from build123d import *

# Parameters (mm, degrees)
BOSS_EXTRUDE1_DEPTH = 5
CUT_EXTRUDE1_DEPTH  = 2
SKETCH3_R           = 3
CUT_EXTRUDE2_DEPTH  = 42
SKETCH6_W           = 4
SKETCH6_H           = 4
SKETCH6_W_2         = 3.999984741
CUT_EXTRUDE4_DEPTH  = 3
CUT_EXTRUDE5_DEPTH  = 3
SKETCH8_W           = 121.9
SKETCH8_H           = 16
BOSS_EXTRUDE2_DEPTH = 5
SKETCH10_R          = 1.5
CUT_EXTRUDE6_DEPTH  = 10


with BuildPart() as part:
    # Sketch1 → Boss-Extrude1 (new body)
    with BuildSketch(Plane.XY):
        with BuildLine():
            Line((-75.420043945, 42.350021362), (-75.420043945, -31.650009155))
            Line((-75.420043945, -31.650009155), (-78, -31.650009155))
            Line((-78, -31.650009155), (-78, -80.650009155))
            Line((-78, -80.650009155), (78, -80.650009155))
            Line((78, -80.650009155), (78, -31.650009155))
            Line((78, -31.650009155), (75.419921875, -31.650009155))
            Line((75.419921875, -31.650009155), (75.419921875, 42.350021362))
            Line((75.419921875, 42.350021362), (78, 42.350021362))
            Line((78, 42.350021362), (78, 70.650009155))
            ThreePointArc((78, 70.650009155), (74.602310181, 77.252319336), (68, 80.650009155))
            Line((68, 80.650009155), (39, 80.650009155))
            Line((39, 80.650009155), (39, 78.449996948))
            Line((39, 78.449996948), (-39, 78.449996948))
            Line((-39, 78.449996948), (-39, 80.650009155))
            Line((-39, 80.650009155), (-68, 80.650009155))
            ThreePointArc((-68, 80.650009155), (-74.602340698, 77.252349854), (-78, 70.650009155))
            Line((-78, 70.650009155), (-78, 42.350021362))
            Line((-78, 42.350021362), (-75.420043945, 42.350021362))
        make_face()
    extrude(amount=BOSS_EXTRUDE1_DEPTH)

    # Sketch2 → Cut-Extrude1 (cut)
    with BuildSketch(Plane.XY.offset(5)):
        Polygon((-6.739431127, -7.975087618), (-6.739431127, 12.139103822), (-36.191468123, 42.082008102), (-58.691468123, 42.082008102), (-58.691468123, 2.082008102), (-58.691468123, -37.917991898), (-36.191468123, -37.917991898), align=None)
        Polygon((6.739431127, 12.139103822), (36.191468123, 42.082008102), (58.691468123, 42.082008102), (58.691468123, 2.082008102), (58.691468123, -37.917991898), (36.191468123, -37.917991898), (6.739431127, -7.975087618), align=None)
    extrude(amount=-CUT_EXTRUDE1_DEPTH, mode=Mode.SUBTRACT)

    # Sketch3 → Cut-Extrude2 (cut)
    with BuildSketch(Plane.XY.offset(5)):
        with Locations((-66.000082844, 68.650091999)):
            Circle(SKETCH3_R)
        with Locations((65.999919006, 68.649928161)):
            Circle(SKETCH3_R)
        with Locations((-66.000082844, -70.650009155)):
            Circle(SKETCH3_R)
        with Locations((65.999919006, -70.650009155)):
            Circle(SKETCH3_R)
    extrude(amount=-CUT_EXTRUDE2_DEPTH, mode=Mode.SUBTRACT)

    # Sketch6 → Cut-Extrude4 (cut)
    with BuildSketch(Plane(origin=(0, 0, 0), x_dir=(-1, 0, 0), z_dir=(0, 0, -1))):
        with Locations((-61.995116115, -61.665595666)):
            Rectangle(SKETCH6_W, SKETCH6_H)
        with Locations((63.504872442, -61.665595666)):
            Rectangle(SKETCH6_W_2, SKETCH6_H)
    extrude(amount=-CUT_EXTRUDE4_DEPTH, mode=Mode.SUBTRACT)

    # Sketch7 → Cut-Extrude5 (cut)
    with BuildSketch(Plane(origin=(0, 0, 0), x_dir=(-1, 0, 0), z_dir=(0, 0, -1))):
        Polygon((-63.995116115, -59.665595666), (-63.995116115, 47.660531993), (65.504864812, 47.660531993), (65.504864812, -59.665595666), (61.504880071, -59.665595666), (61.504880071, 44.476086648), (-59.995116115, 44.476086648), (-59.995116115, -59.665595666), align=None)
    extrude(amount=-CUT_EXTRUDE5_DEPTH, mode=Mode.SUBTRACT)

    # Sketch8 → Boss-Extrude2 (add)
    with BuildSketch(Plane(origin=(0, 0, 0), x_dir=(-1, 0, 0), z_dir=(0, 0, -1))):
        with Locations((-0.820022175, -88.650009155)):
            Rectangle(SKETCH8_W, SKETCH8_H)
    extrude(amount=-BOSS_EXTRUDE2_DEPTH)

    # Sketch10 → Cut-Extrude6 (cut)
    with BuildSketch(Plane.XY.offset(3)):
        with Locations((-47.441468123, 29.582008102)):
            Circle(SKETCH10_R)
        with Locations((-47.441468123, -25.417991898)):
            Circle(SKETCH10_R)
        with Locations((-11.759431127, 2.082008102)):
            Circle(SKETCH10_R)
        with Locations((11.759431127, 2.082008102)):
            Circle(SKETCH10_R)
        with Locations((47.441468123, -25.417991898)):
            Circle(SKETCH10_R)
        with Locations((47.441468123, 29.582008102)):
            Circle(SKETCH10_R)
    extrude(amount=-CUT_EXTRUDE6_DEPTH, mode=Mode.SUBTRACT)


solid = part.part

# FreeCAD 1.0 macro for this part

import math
import FreeCAD as App
import Part
import Sketcher
from FreeCAD import Vector
Q = App.Units.Quantity

doc = App.newDocument("Part")
body = doc.addObject("PartDesign::Body", "Body")

# Sketch on XY plane
sketch1 = body.newObject("Sketcher::SketchObject", "Sketch")
sketch1.AttachmentSupport = (doc.getObject("XY_Plane"), [""])
sketch1.MapMode = "FlatFace"
sketch1.addGeometry(Part.LineSegment(Vector(-75.4, 42.4, 0), Vector(-75.4, -31.7, 0)), False)
sketch1.addGeometry(Part.LineSegment(Vector(-75.4, -31.7, 0), Vector(-78, -31.7, 0)), False)
sketch1.addGeometry(Part.LineSegment(Vector(-78, -31.7, 0), Vector(-78, -80.7, 0)), False)
sketch1.addGeometry(Part.LineSegment(Vector(-78, -80.7, 0), Vector(78, -80.7, 0)), False)
sketch1.addGeometry(Part.LineSegment(Vector(78, -80.7, 0), Vector(78, -31.7, 0)), False)
sketch1.addGeometry(Part.LineSegment(Vector(78, -31.7, 0), Vector(75.4, -31.7, 0)), False)
sketch1.addGeometry(Part.LineSegment(Vector(75.4, -31.7, 0), Vector(75.4, 42.4, 0)), False)
sketch1.addGeometry(Part.LineSegment(Vector(75.4, 42.4, 0), Vector(78, 42.4, 0)), False)
sketch1.addGeometry(Part.LineSegment(Vector(78, 42.4, 0), Vector(78, 70.7, 0)), False)
sketch1.addGeometry(Part.ArcOfCircle(Part.Circle(Vector(66, 68.6, 0), Vector(0, 0, 1), 12.2), math.radians(9), math.radians(81)), False)
sketch1.addGeometry(Part.LineSegment(Vector(68, 80.7, 0), Vector(39, 80.7, 0)), False)
sketch1.addGeometry(Part.LineSegment(Vector(39, 80.7, 0), Vector(39, 78.4, 0)), False)
sketch1.addGeometry(Part.LineSegment(Vector(39, 78.4, 0), Vector(-39, 78.4, 0)), False)
sketch1.addGeometry(Part.LineSegment(Vector(-39, 78.4, 0), Vector(-39, 80.7, 0)), False)
sketch1.addGeometry(Part.LineSegment(Vector(-39, 80.7, 0), Vector(-68, 80.7, 0)), False)
sketch1.addGeometry(Part.ArcOfCircle(Part.Circle(Vector(-66, 68.7, 0), Vector(0, 0, 1), 12.2), math.radians(99), math.radians(171)), False)
sketch1.addGeometry(Part.LineSegment(Vector(-78, 70.7, 0), Vector(-78, 42.4, 0)), False)
sketch1.addGeometry(Part.LineSegment(Vector(-78, 42.4, 0), Vector(-75.4, 42.4, 0)), False)
sketch1.addConstraint(Sketcher.Constraint("Coincident", 0, 2, 1, 1))
sketch1.addConstraint(Sketcher.Constraint("Coincident", 1, 2, 2, 1))
sketch1.addConstraint(Sketcher.Constraint("Coincident", 2, 2, 3, 1))
sketch1.addConstraint(Sketcher.Constraint("Coincident", 3, 2, 4, 1))
sketch1.addConstraint(Sketcher.Constraint("Coincident", 4, 2, 5, 1))
sketch1.addConstraint(Sketcher.Constraint("Coincident", 5, 2, 6, 1))
sketch1.addConstraint(Sketcher.Constraint("Coincident", 6, 2, 7, 1))
sketch1.addConstraint(Sketcher.Constraint("Coincident", 7, 2, 8, 1))
sketch1.addConstraint(Sketcher.Constraint("Coincident", 8, 2, 9, 1))
sketch1.addConstraint(Sketcher.Constraint("Coincident", 9, 2, 10, 1))
sketch1.addConstraint(Sketcher.Constraint("Coincident", 10, 2, 11, 1))
sketch1.addConstraint(Sketcher.Constraint("Coincident", 11, 2, 12, 1))
sketch1.addConstraint(Sketcher.Constraint("Coincident", 12, 2, 13, 1))
sketch1.addConstraint(Sketcher.Constraint("Coincident", 13, 2, 14, 1))
sketch1.addConstraint(Sketcher.Constraint("Coincident", 14, 2, 15, 1))
sketch1.addConstraint(Sketcher.Constraint("Coincident", 15, 2, 16, 1))
sketch1.addConstraint(Sketcher.Constraint("Coincident", 16, 2, 17, 1))
sketch1.addConstraint(Sketcher.Constraint("Coincident", 17, 2, 0, 1))
sketch1.addConstraint(Sketcher.Constraint("Vertical", 0))
sketch1.addConstraint(Sketcher.Constraint("Horizontal", 1))
sketch1.addConstraint(Sketcher.Constraint("Vertical", 2))
sketch1.addConstraint(Sketcher.Constraint("Horizontal", 3))
sketch1.addConstraint(Sketcher.Constraint("Vertical", 4))
sketch1.addConstraint(Sketcher.Constraint("Horizontal", 5))
sketch1.addConstraint(Sketcher.Constraint("Vertical", 6))
sketch1.addConstraint(Sketcher.Constraint("Horizontal", 7))
sketch1.addConstraint(Sketcher.Constraint("Vertical", 8))
sketch1.addConstraint(Sketcher.Constraint("Horizontal", 10))
sketch1.addConstraint(Sketcher.Constraint("Vertical", 11))
sketch1.addConstraint(Sketcher.Constraint("Horizontal", 12))
sketch1.addConstraint(Sketcher.Constraint("Vertical", 13))
sketch1.addConstraint(Sketcher.Constraint("Horizontal", 14))
sketch1.addConstraint(Sketcher.Constraint("Vertical", 16))
sketch1.addConstraint(Sketcher.Constraint("Horizontal", 17))
sketch1.addConstraint(Sketcher.Constraint("Symmetric", 1, 2, 4, 2, -2))
sketch1.addConstraint(Sketcher.Constraint("Symmetric", 10, 2, 13, 2, -2))
sketch1.addConstraint(Sketcher.Constraint("Symmetric", 8, 2, 15, 2, -2))
sketch1.addConstraint(Sketcher.Constraint("Horizontal", 7, 2, 16, 2))
sketch1.addConstraint(Sketcher.Constraint("Vertical", 4, 2, 7, 2))
sketch1.addConstraint(Sketcher.Constraint("Equal", 10, 14))
sketch1.addConstraint(Sketcher.Constraint("DistanceX", 3, 1, 3, 2, Q("156 mm")))
sketch1.addConstraint(Sketcher.Constraint("DistanceX", 10, 2, 10, 1, Q("29 mm")))
sketch1.addConstraint(Sketcher.Constraint("DistanceX", 12, 2, 12, 1, Q("78 mm")))
sketch1.addConstraint(Sketcher.Constraint("DistanceY", 2, 2, 2, 1, Q("49 mm")))
sketch1.addConstraint(Sketcher.Constraint("DistanceX", 15, 3, 9, 3, Q("132.000002 mm")))
sketch1.addConstraint(Sketcher.Constraint("DistanceY", 8, 2, 9, 2, Q("10 mm")))
sketch1.addConstraint(Sketcher.Constraint("Radius", 9, Q("12.165618 mm")))
sketch1.addConstraint(Sketcher.Constraint("DistanceX", 5, 2, 5, 1, Q("2.580078 mm")))
sketch1.addConstraint(Sketcher.Constraint("DistanceY", 0, 2, 0, 1, Q("74.000031 mm")))
sketch1.addConstraint(Sketcher.Constraint("DistanceY", 0, 2, 15, 3, Q("100.300101 mm")))
sketch1.addConstraint(Sketcher.Constraint("DistanceX", 1, 2, 1, 1, Q("2.579956 mm")))
sketch1.addConstraint(Sketcher.Constraint("DistanceY", 11, 2, 11, 1, Q("2.200012 mm")))
sketch1.addConstraint(Sketcher.Constraint("DistanceY", -1, 1, 9, 3, Q("68.649928 mm")))
pad1 = body.newObject("PartDesign::Pad", "Pad")
pad1.Profile = sketch1
pad1.Length = 5

# Sketch on XY plane
sketch2 = body.newObject("Sketcher::SketchObject", "Sketch001")
sketch2.AttachmentSupport = (doc.getObject("XY_Plane"), [""])
sketch2.MapMode = "FlatFace"
sketch2.AttachmentOffset = App.Placement(Vector(0, 0, 5), App.Rotation())
sketch2.addGeometry(Part.LineSegment(Vector(-7, -8, 0), Vector(-7, 12, 0)), False)
sketch2.addGeometry(Part.LineSegment(Vector(-7, 12, 0), Vector(-36, 42, 0)), False)
sketch2.addGeometry(Part.LineSegment(Vector(-36, 42, 0), Vector(-59, 42, 0)), False)
sketch2.addGeometry(Part.LineSegment(Vector(-59, 42, 0), Vector(-59, -38, 0)), False)
sketch2.addGeometry(Part.LineSegment(Vector(-59, -38, 0), Vector(-36, -38, 0)), False)
sketch2.addGeometry(Part.LineSegment(Vector(-36, -38, 0), Vector(-7, -8, 0)), False)
sketch2.addGeometry(Part.LineSegment(Vector(36, 42, 0), Vector(7, 12, 0)), False)
sketch2.addGeometry(Part.LineSegment(Vector(7, 12, 0), Vector(7, -8, 0)), False)
sketch2.addGeometry(Part.LineSegment(Vector(7, -8, 0), Vector(36, -38, 0)), False)
sketch2.addGeometry(Part.LineSegment(Vector(36, -38, 0), Vector(59, -38, 0)), False)
sketch2.addGeometry(Part.LineSegment(Vector(59, -38, 0), Vector(59, 42, 0)), False)
sketch2.addGeometry(Part.LineSegment(Vector(59, 42, 0), Vector(36, 42, 0)), False)
sketch2.addConstraint(Sketcher.Constraint("Coincident", 0, 2, 1, 1))
sketch2.addConstraint(Sketcher.Constraint("Coincident", 1, 2, 2, 1))
sketch2.addConstraint(Sketcher.Constraint("Coincident", 2, 2, 3, 1))
sketch2.addConstraint(Sketcher.Constraint("Coincident", 3, 2, 4, 1))
sketch2.addConstraint(Sketcher.Constraint("Coincident", 4, 2, 5, 1))
sketch2.addConstraint(Sketcher.Constraint("Coincident", 5, 2, 0, 1))
sketch2.addConstraint(Sketcher.Constraint("Coincident", 6, 2, 7, 1))
sketch2.addConstraint(Sketcher.Constraint("Coincident", 7, 2, 8, 1))
sketch2.addConstraint(Sketcher.Constraint("Coincident", 8, 2, 9, 1))
sketch2.addConstraint(Sketcher.Constraint("Coincident", 9, 2, 10, 1))
sketch2.addConstraint(Sketcher.Constraint("Coincident", 10, 2, 11, 1))
sketch2.addConstraint(Sketcher.Constraint("Coincident", 11, 2, 6, 1))
sketch2.addConstraint(Sketcher.Constraint("Vertical", 0))
sketch2.addConstraint(Sketcher.Constraint("Horizontal", 2))
sketch2.addConstraint(Sketcher.Constraint("Vertical", 3))
sketch2.addConstraint(Sketcher.Constraint("Horizontal", 4))
sketch2.addConstraint(Sketcher.Constraint("Vertical", 7))
sketch2.addConstraint(Sketcher.Constraint("Horizontal", 9))
sketch2.addConstraint(Sketcher.Constraint("Vertical", 10))
sketch2.addConstraint(Sketcher.Constraint("Horizontal", 11))
sketch2.addConstraint(Sketcher.Constraint("Symmetric", 0, 2, 6, 2, -2))
sketch2.addConstraint(Sketcher.Constraint("Symmetric", 4, 2, 8, 2, -2))
sketch2.addConstraint(Sketcher.Constraint("Symmetric", 2, 2, 10, 2, -2))
sketch2.addConstraint(Sketcher.Constraint("Parallel", 5, 6))
sketch2.addConstraint(Sketcher.Constraint("Parallel", 1, 8))
sketch2.addConstraint(Sketcher.Constraint("Horizontal", 5, 2, 7, 2))
sketch2.addConstraint(Sketcher.Constraint("Vertical", 1, 2, 4, 2))
sketch2.addConstraint(Sketcher.Constraint("DistanceY", 3, 2, 3, 1, Q("80 mm")))
sketch2.addConstraint(Sketcher.Constraint("Distance", 1, Q("42 mm")))
sketch2.addConstraint(Sketcher.Constraint("DistanceX", 2, 2, 2, 1, Q("22.5 mm")))
sketch2.addConstraint(Sketcher.Constraint("DistanceY", 0, 1, 0, 2, Q("20.114191 mm")))
sketch2.addConstraint(Sketcher.Constraint("DistanceX", 1, 2, 6, 2, Q("42.930899 mm")))
sketch2.addConstraint(Sketcher.Constraint("DistanceY", -1, 1, 1, 2, Q("42.082008 mm")))
pocket1 = body.newObject("PartDesign::Pocket", "Pocket")
pocket1.Profile = sketch2
pocket1.Length = 2

# Sketch on XY plane
sketch3 = body.newObject("Sketcher::SketchObject", "Sketch002")
sketch3.AttachmentSupport = (doc.getObject("XY_Plane"), [""])
sketch3.MapMode = "FlatFace"
sketch3.AttachmentOffset = App.Placement(Vector(0, 0, 5), App.Rotation())
sketch3.addGeometry(Part.Circle(Vector(-66, 68.7, 0), Vector(0, 0, 1), 3), False)
sketch3.addGeometry(Part.Circle(Vector(66, 68.6, 0), Vector(0, 0, 1), 3), False)
sketch3.addGeometry(Part.Circle(Vector(-66, -70.7, 0), Vector(0, 0, 1), 3), False)
sketch3.addGeometry(Part.Circle(Vector(66, -70.7, 0), Vector(0, 0, 1), 3), False)
sketch3.addConstraint(Sketcher.Constraint("Equal", 0, 1))
sketch3.addConstraint(Sketcher.Constraint("Equal", 1, 2))
sketch3.addConstraint(Sketcher.Constraint("Equal", 2, 3))
sketch3.addConstraint(Sketcher.Constraint("Horizontal", 2, 3, 3, 3))
sketch3.addConstraint(Sketcher.Constraint("Vertical", 0, 3, 2, 3))
sketch3.addConstraint(Sketcher.Constraint("Vertical", 1, 3, 3, 3))
sketch3.addConstraint(Sketcher.Constraint("Diameter", 0, Q("6 mm")))
sketch3.addConstraint(Sketcher.Constraint("DistanceX", 0, 3, 1, 3, Q("132.000002 mm")))
sketch3.addConstraint(Sketcher.Constraint("DistanceY", 2, 3, 0, 3, Q("139.300101 mm")))
sketch3.addConstraint(Sketcher.Constraint("DistanceY", -1, 1, 0, 3, Q("68.650092 mm")))
sketch3.addConstraint(Sketcher.Constraint("DistanceX", -1, 1, 1, 3, Q("65.999919 mm")))
sketch3.addConstraint(Sketcher.Constraint("DistanceY", -1, 1, 1, 3, Q("68.649928 mm")))
pocket2 = body.newObject("PartDesign::Pocket", "Pocket001")
pocket2.Profile = sketch3
pocket2.Length = 42

# Sketch on XY plane
sketch4 = body.newObject("Sketcher::SketchObject", "Sketch003")
sketch4.AttachmentSupport = (doc.getObject("XY_Plane"), [""])
sketch4.MapMode = "FlatFace"
sketch4.addGeometry(Part.LineSegment(Vector(64, -59.7, 0), Vector(64, -63.7, 0)), False)
sketch4.addGeometry(Part.LineSegment(Vector(64, -63.7, 0), Vector(60, -63.7, 0)), False)
sketch4.addGeometry(Part.LineSegment(Vector(60, -63.7, 0), Vector(60, -59.7, 0)), False)
sketch4.addGeometry(Part.LineSegment(Vector(60, -59.7, 0), Vector(64, -59.7, 0)), False)
sketch4.addGeometry(Part.LineSegment(Vector(-61.5, -59.7, 0), Vector(-61.5, -63.7, 0)), False)
sketch4.addGeometry(Part.LineSegment(Vector(-61.5, -63.7, 0), Vector(-65.5, -63.7, 0)), False)
sketch4.addGeometry(Part.LineSegment(Vector(-65.5, -63.7, 0), Vector(-65.5, -59.7, 0)), False)
sketch4.addGeometry(Part.LineSegment(Vector(-65.5, -59.7, 0), Vector(-61.5, -59.7, 0)), False)
sketch4.addConstraint(Sketcher.Constraint("Coincident", 0, 2, 1, 1))
sketch4.addConstraint(Sketcher.Constraint("Coincident", 1, 2, 2, 1))
sketch4.addConstraint(Sketcher.Constraint("Coincident", 2, 2, 3, 1))
sketch4.addConstraint(Sketcher.Constraint("Coincident", 3, 2, 0, 1))
sketch4.addConstraint(Sketcher.Constraint("Coincident", 4, 2, 5, 1))
sketch4.addConstraint(Sketcher.Constraint("Coincident", 5, 2, 6, 1))
sketch4.addConstraint(Sketcher.Constraint("Coincident", 6, 2, 7, 1))
sketch4.addConstraint(Sketcher.Constraint("Coincident", 7, 2, 4, 1))
sketch4.addConstraint(Sketcher.Constraint("Vertical", 0))
sketch4.addConstraint(Sketcher.Constraint("Horizontal", 1))
sketch4.addConstraint(Sketcher.Constraint("Vertical", 2))
sketch4.addConstraint(Sketcher.Constraint("Horizontal", 3))
sketch4.addConstraint(Sketcher.Constraint("Vertical", 4))
sketch4.addConstraint(Sketcher.Constraint("Horizontal", 5))
sketch4.addConstraint(Sketcher.Constraint("Vertical", 6))
sketch4.addConstraint(Sketcher.Constraint("Horizontal", 7))
sketch4.addConstraint(Sketcher.Constraint("Horizontal", 1, 2, 4, 2))
sketch4.addConstraint(Sketcher.Constraint("Horizontal", 3, 2, 6, 2))
sketch4.addConstraint(Sketcher.Constraint("Equal", 3, 0))
sketch4.addConstraint(Sketcher.Constraint("DistanceX", 1, 2, 1, 1, Q("4 mm")))
sketch4.addConstraint(Sketcher.Constraint("DistanceX", 5, 2, 5, 1, Q("3.999985 mm")))
sketch4.addConstraint(Sketcher.Constraint("DistanceX", 4, 2, -1, 1, Q("61.50488 mm")))
sketch4.addConstraint(Sketcher.Constraint("DistanceX", 5, 2, 1, 2, Q("125.499981 mm")))
sketch4.addConstraint(Sketcher.Constraint("DistanceY", 0, 2, -1, 1, Q("63.665596 mm")))
pocket3 = body.newObject("PartDesign::Pocket", "Pocket002")
pocket3.Profile = sketch4
pocket3.Length = 3
pocket3.Reversed = True

# Sketch on XY plane
sketch5 = body.newObject("Sketcher::SketchObject", "Sketch004")
sketch5.AttachmentSupport = (doc.getObject("XY_Plane"), [""])
sketch5.MapMode = "FlatFace"
sketch5.addGeometry(Part.LineSegment(Vector(64, 47.7, 0), Vector(64, -59.7, 0)), False)
sketch5.addGeometry(Part.LineSegment(Vector(64, -59.7, 0), Vector(60, -59.7, 0)), False)
sketch5.addGeometry(Part.LineSegment(Vector(60, -59.7, 0), Vector(60, 44.5, 0)), False)
sketch5.addGeometry(Part.LineSegment(Vector(60, 44.5, 0), Vector(-61.5, 44.5, 0)), False)
sketch5.addGeometry(Part.LineSegment(Vector(-61.5, 44.5, 0), Vector(-61.5, -59.7, 0)), False)
sketch5.addGeometry(Part.LineSegment(Vector(-61.5, -59.7, 0), Vector(-65.5, -59.7, 0)), False)
sketch5.addGeometry(Part.LineSegment(Vector(-65.5, -59.7, 0), Vector(-65.5, 47.7, 0)), False)
sketch5.addGeometry(Part.LineSegment(Vector(-65.5, 47.7, 0), Vector(64, 47.7, 0)), False)
sketch5.addConstraint(Sketcher.Constraint("Coincident", 0, 2, 1, 1))
sketch5.addConstraint(Sketcher.Constraint("Coincident", 1, 2, 2, 1))
sketch5.addConstraint(Sketcher.Constraint("Coincident", 2, 2, 3, 1))
sketch5.addConstraint(Sketcher.Constraint("Coincident", 3, 2, 4, 1))
sketch5.addConstraint(Sketcher.Constraint("Coincident", 4, 2, 5, 1))
sketch5.addConstraint(Sketcher.Constraint("Coincident", 5, 2, 6, 1))
sketch5.addConstraint(Sketcher.Constraint("Coincident", 6, 2, 7, 1))
sketch5.addConstraint(Sketcher.Constraint("Coincident", 7, 2, 0, 1))
sketch5.addConstraint(Sketcher.Constraint("Vertical", 0))
sketch5.addConstraint(Sketcher.Constraint("Horizontal", 1))
sketch5.addConstraint(Sketcher.Constraint("Vertical", 2))
sketch5.addConstraint(Sketcher.Constraint("Horizontal", 3))
sketch5.addConstraint(Sketcher.Constraint("Vertical", 4))
sketch5.addConstraint(Sketcher.Constraint("Horizontal", 5))
sketch5.addConstraint(Sketcher.Constraint("Vertical", 6))
sketch5.addConstraint(Sketcher.Constraint("Horizontal", 7))
sketch5.addConstraint(Sketcher.Constraint("Horizontal", 1, 2, 4, 2))
sketch5.addConstraint(Sketcher.Constraint("DistanceX", 1, 2, 1, 1, Q("4 mm")))
sketch5.addConstraint(Sketcher.Constraint("DistanceX", 7, 1, 7, 2, Q("129.499981 mm")))
sketch5.addConstraint(Sketcher.Constraint("DistanceX", 3, 2, 3, 1, Q("121.499996 mm")))
sketch5.addConstraint(Sketcher.Constraint("DistanceY", 0, 2, 0, 1, Q("107.326128 mm")))
sketch5.addConstraint(Sketcher.Constraint("DistanceY", 2, 1, 2, 2, Q("104.141682 mm")))
sketch5.addConstraint(Sketcher.Constraint("DistanceX", 3, 2, -1, 1, Q("61.50488 mm")))
sketch5.addConstraint(Sketcher.Constraint("DistanceY", -1, 1, 6, 2, Q("47.660532 mm")))
pocket4 = body.newObject("PartDesign::Pocket", "Pocket003")
pocket4.Profile = sketch5
pocket4.Length = 3
pocket4.Reversed = True

# Sketch on XY plane
sketch6 = body.newObject("Sketcher::SketchObject", "Sketch005")
sketch6.AttachmentSupport = (doc.getObject("XY_Plane"), [""])
sketch6.MapMode = "FlatFace"
sketch6.addGeometry(Part.LineSegment(Vector(62, -81, 0), Vector(62, -97, 0)), False)
sketch6.addGeometry(Part.LineSegment(Vector(62, -97, 0), Vector(-60, -97, 0)), False)
sketch6.addGeometry(Part.LineSegment(Vector(-60, -97, 0), Vector(-60, -81, 0)), False)
sketch6.addGeometry(Part.LineSegment(Vector(-60, -81, 0), Vector(62, -81, 0)), False)
sketch6.addConstraint(Sketcher.Constraint("Coincident", 0, 2, 1, 1))
sketch6.addConstraint(Sketcher.Constraint("Coincident", 1, 2, 2, 1))
sketch6.addConstraint(Sketcher.Constraint("Coincident", 2, 2, 3, 1))
sketch6.addConstraint(Sketcher.Constraint("Coincident", 3, 2, 0, 1))
sketch6.addConstraint(Sketcher.Constraint("Vertical", 0))
sketch6.addConstraint(Sketcher.Constraint("Horizontal", 1))
sketch6.addConstraint(Sketcher.Constraint("Vertical", 2))
sketch6.addConstraint(Sketcher.Constraint("Horizontal", 3))
sketch6.addConstraint(Sketcher.Constraint("DistanceY", 0, 2, 0, 1, Q("16 mm")))
sketch6.addConstraint(Sketcher.Constraint("DistanceX", 1, 2, 1, 1, Q("121.9 mm")))
sketch6.addConstraint(Sketcher.Constraint("DistanceY", 0, 2, -1, 1, Q("96.650009 mm")))
sketch6.addConstraint(Sketcher.Constraint("DistanceX", -1, 1, 0, 2, Q("61.770022 mm")))
pad2 = body.newObject("PartDesign::Pad", "Pad001")
pad2.Profile = sketch6
pad2.Length = 5

# Sketch on XY plane
sketch7 = body.newObject("Sketcher::SketchObject", "Sketch006")
sketch7.AttachmentSupport = (doc.getObject("XY_Plane"), [""])
sketch7.MapMode = "FlatFace"
sketch7.AttachmentOffset = App.Placement(Vector(0, 0, 3), App.Rotation())
sketch7.addGeometry(Part.Circle(Vector(-47.4, 29.6, 0), Vector(0, 0, 1), 1.5), False)
sketch7.addGeometry(Part.Circle(Vector(-47.4, -25.4, 0), Vector(0, 0, 1), 1.5), False)
sketch7.addGeometry(Part.Circle(Vector(-11.8, 2.1, 0), Vector(0, 0, 1), 1.5), False)
sketch7.addGeometry(Part.Circle(Vector(11.8, 2.1, 0), Vector(0, 0, 1), 1.5), False)
sketch7.addGeometry(Part.Circle(Vector(47.4, -25.4, 0), Vector(0, 0, 1), 1.5), False)
sketch7.addGeometry(Part.Circle(Vector(47.4, 29.6, 0), Vector(0, 0, 1), 1.5), False)
sketch7.addConstraint(Sketcher.Constraint("Equal", 0, 1))
sketch7.addConstraint(Sketcher.Constraint("Equal", 1, 2))
sketch7.addConstraint(Sketcher.Constraint("Equal", 2, 3))
sketch7.addConstraint(Sketcher.Constraint("Equal", 3, 4))
sketch7.addConstraint(Sketcher.Constraint("Equal", 4, 5))
sketch7.addConstraint(Sketcher.Constraint("Symmetric", 2, 3, 3, 3, -2))
sketch7.addConstraint(Sketcher.Constraint("Symmetric", 1, 3, 4, 3, -2))
sketch7.addConstraint(Sketcher.Constraint("Symmetric", 0, 3, 5, 3, -2))
sketch7.addConstraint(Sketcher.Constraint("Vertical", 0, 3, 1, 3))
sketch7.addConstraint(Sketcher.Constraint("Diameter", 0, Q("3 mm")))
sketch7.addConstraint(Sketcher.Constraint("DistanceY", 1, 3, 0, 3, Q("55 mm")))
sketch7.addConstraint(Sketcher.Constraint("DistanceY", 2, 3, 0, 3, Q("27.5 mm")))
sketch7.addConstraint(Sketcher.Constraint("DistanceX", 0, 3, 3, 3, Q("59.200899 mm")))
sketch7.addConstraint(Sketcher.Constraint("DistanceX", 0, 3, -1, 1, Q("47.441468 mm")))
sketch7.addConstraint(Sketcher.Constraint("DistanceY", -1, 1, 0, 3, Q("29.582008 mm")))
pocket5 = body.newObject("PartDesign::Pocket", "Pocket004")
pocket5.Profile = sketch7
pocket5.Length = 10

doc.recompute()
